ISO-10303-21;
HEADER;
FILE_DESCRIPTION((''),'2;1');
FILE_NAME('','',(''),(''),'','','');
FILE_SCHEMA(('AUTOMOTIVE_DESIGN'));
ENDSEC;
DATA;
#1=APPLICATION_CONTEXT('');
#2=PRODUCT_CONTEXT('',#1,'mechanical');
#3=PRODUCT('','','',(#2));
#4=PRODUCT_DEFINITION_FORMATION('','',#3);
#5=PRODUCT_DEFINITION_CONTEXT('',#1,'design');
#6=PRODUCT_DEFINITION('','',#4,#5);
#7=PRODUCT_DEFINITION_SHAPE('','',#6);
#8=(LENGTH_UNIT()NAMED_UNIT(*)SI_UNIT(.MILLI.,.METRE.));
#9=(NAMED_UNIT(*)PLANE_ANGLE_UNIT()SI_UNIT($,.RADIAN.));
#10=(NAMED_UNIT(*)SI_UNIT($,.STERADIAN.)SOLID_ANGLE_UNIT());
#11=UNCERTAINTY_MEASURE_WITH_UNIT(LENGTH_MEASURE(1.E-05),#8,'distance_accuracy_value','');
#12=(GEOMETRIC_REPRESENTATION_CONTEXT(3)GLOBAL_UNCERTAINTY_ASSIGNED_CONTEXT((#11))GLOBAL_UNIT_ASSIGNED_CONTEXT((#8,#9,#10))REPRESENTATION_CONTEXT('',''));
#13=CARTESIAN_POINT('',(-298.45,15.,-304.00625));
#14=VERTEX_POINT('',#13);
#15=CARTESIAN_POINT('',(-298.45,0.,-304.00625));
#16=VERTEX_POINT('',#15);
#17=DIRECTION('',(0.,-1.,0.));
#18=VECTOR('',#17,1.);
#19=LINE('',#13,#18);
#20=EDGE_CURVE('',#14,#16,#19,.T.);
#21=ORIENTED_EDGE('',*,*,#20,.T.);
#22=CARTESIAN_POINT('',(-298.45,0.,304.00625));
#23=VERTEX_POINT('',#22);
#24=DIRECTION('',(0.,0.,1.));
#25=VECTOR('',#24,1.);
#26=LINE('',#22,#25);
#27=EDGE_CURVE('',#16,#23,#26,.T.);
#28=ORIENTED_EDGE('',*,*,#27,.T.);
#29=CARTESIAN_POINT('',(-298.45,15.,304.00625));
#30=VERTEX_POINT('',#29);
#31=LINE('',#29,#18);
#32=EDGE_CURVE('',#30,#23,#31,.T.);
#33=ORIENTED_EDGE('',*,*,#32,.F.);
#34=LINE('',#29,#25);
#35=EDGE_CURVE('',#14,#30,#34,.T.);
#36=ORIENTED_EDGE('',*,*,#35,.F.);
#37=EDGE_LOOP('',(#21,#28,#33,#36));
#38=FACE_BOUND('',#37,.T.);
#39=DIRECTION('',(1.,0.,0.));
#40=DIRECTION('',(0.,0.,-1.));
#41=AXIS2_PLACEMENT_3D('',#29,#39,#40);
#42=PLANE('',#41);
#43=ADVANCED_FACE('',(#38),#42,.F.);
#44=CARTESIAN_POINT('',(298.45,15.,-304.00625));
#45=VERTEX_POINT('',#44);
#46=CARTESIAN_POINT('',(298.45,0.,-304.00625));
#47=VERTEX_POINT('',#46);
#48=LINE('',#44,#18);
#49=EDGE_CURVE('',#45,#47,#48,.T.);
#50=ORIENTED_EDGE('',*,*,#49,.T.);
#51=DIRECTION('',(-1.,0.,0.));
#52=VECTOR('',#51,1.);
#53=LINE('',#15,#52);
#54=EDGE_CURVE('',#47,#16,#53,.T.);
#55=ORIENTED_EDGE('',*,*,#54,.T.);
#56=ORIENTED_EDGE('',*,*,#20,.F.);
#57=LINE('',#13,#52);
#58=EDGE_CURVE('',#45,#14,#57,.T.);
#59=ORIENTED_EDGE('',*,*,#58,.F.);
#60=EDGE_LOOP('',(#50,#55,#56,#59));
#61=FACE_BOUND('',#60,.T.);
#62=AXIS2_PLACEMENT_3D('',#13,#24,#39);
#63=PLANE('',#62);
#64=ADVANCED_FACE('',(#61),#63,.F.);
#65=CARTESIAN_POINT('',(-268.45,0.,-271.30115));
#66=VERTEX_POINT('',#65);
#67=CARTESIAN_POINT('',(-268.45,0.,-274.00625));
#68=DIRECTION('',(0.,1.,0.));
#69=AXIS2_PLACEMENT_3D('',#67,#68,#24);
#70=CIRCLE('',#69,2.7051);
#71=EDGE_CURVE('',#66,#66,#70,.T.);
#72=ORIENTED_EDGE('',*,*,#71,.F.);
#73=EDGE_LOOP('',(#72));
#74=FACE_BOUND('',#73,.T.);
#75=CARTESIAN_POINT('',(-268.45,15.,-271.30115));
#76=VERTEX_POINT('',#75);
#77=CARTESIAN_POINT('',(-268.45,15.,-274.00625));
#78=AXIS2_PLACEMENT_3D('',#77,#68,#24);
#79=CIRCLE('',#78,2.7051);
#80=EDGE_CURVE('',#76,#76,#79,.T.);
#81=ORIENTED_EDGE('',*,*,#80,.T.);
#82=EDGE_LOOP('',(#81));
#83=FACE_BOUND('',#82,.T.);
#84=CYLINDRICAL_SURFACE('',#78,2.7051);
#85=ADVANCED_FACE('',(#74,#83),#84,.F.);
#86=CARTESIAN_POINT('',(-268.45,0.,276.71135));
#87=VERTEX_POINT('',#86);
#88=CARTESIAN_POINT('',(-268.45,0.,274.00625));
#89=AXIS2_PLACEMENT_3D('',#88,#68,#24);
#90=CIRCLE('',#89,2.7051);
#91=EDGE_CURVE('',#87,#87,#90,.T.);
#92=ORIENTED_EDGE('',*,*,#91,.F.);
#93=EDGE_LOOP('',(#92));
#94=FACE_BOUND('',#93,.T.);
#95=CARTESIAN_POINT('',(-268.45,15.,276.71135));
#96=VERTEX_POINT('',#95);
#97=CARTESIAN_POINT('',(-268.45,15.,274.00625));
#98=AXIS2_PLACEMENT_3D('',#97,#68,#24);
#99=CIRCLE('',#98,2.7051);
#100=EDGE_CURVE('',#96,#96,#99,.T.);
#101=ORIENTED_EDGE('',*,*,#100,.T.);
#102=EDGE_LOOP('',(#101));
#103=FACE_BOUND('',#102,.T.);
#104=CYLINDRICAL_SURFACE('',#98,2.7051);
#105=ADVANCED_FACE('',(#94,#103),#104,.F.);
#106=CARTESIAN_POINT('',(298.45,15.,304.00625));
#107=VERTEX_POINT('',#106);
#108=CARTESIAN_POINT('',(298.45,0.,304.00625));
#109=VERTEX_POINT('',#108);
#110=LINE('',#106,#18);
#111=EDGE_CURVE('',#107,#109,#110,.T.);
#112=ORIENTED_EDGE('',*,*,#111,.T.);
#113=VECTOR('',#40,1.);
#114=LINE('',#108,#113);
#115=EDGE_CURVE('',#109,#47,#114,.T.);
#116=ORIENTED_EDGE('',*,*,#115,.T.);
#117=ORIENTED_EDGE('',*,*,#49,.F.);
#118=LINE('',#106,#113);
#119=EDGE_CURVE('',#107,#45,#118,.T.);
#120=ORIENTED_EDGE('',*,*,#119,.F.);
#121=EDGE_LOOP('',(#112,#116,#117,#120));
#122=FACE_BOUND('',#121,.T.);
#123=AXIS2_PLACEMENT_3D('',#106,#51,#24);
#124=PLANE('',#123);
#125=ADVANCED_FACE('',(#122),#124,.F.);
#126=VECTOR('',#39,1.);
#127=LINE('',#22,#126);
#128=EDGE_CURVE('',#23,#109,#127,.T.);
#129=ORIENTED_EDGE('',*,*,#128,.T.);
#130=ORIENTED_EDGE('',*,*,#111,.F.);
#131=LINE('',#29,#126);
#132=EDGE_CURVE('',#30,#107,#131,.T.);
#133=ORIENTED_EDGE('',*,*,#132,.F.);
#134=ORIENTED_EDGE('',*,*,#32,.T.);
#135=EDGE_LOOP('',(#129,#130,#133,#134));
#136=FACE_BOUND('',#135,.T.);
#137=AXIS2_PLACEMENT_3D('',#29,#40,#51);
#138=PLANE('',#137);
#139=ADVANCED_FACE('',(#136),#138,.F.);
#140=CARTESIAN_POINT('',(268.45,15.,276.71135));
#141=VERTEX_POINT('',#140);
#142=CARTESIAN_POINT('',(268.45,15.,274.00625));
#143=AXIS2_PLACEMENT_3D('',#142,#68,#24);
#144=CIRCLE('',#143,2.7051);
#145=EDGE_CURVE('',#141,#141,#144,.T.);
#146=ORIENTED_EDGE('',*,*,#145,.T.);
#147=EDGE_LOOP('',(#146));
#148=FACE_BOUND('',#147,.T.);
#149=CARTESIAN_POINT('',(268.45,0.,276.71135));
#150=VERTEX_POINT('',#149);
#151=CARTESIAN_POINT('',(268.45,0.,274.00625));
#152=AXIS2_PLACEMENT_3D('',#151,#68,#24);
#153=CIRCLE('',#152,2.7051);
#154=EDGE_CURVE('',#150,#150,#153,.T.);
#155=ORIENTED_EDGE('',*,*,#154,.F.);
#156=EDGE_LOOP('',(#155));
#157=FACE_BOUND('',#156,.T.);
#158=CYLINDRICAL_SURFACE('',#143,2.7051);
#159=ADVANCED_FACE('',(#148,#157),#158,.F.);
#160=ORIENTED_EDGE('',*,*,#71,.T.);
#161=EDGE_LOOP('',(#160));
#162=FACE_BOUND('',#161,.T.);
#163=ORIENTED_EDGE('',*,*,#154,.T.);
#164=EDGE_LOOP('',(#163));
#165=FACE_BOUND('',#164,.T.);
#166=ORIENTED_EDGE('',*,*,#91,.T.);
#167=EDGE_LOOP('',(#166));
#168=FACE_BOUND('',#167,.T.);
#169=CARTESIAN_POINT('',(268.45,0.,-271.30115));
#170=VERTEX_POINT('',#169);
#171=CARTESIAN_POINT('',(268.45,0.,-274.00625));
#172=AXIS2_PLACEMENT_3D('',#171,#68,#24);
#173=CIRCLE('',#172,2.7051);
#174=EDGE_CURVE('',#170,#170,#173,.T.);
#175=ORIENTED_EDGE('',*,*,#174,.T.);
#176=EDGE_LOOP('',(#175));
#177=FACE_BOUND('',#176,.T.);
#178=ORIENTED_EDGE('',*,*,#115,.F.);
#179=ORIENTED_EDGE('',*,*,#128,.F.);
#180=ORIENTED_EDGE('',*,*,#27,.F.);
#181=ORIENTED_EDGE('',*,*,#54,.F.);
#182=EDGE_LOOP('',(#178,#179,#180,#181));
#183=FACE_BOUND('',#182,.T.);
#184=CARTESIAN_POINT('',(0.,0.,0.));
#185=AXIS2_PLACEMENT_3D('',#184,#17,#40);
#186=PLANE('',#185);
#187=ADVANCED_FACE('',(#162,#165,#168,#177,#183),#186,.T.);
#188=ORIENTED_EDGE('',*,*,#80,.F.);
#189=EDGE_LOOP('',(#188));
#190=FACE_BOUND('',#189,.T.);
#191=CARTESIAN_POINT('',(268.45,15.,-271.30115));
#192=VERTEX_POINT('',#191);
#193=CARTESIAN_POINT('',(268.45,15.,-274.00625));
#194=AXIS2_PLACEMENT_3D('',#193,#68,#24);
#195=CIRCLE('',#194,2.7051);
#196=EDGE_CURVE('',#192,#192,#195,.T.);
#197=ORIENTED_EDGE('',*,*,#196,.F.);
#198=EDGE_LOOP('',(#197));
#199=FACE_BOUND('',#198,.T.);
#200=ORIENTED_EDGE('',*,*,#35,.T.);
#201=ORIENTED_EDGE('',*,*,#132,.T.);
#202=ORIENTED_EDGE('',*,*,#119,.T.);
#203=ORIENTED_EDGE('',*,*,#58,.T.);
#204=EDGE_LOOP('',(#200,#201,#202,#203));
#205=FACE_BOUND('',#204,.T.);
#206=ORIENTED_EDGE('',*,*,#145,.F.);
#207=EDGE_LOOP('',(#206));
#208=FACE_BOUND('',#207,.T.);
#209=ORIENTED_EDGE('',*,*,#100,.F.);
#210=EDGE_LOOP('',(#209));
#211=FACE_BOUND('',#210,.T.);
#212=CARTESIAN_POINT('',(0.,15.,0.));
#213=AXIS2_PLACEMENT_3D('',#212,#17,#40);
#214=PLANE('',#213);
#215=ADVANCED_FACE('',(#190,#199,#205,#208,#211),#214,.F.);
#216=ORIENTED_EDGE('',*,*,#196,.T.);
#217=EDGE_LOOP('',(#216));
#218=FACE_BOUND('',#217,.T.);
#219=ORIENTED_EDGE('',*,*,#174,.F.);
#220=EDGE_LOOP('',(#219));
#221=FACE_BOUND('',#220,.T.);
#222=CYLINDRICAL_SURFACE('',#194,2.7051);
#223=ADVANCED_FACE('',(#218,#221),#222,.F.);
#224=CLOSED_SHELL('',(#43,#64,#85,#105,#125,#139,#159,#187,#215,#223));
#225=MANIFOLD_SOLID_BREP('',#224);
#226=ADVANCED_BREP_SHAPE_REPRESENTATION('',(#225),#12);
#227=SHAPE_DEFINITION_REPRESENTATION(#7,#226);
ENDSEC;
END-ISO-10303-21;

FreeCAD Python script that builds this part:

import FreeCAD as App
import Part
import Sketcher
from FreeCAD import Vector
Q = App.Units.Quantity


def add_polygon(sketch, points):
    """Adds a closed chain of lines whose ends are joined by coincident constraints."""
    first, n = sketch.GeometryCount, len(points)
    for a, b in zip(points, points[1:] + points[:1]):
        sketch.addGeometry(Part.LineSegment(App.Vector(*a, 0), App.Vector(*b, 0)), False)
    for i in range(n):
        sketch.addConstraint(Sketcher.Constraint("Coincident", first + i, 2, first + (i + 1) % n, 1))

doc = App.newDocument("Part")
body = doc.addObject("PartDesign::Body", "Body")

# Sketch on XZ plane
sketch1 = body.newObject("Sketcher::SketchObject", "Sketch")
sketch1.AttachmentSupport = (doc.getObject("XZ_Plane"), [""])
sketch1.MapMode = "FlatFace"
add_polygon(sketch1, [(-298.45, -304.00625), (-298.45, 304.00625), (298.45, 304.00625), (298.45, -304.00625)])  # lines 0-3
sketch1.addConstraint(Sketcher.Constraint("Vertical", 0))
sketch1.addConstraint(Sketcher.Constraint("Horizontal", 1))
sketch1.addConstraint(Sketcher.Constraint("Vertical", 2))
sketch1.addConstraint(Sketcher.Constraint("Horizontal", 3))
sketch1.addConstraint(Sketcher.Constraint("Symmetric", 0, 2, 2, 2, -1, 1))
sketch1.addConstraint(Sketcher.Constraint("DistanceX", 1, 1, 1, 2, Q("23.5 in")))
sketch1.addConstraint(Sketcher.Constraint("DistanceY", 0, 1, 0, 2, Q("23.9375 in")))
pad1 = body.newObject("PartDesign::Pad", "Pad")
pad1.Profile = sketch1
pad1.Length = 15
pad1.Reversed = True

# Sketch on XZ plane
sketch2 = body.newObject("Sketcher::SketchObject", "Sketch001")
sketch2.AttachmentSupport = (doc.getObject("XZ_Plane"), [""])
sketch2.MapMode = "FlatFace"
sketch2.AttachmentOffset = App.Placement(Vector(0, 0, -15), App.Rotation())
sketch2.addGeometry(Part.Circle(Vector(-268.45, 274.00625, 0), Vector(0, 0, 1), 2.7051), False)
sketch2.addGeometry(Part.Circle(Vector(-268.45, -274.00625, 0), Vector(0, 0, 1), 2.7051), False)
sketch2.addGeometry(Part.Circle(Vector(268.45, -274.00625, 0), Vector(0, 0, 1), 2.7051), False)
sketch2.addGeometry(Part.Circle(Vector(268.45, 274.00625, 0), Vector(0, 0, 1), 2.7051), False)
sketch2.addConstraint(Sketcher.Constraint("Equal", 0, 1))
sketch2.addConstraint(Sketcher.Constraint("Equal", 1, 2))
sketch2.addConstraint(Sketcher.Constraint("Equal", 2, 3))
sketch2.addConstraint(Sketcher.Constraint("Symmetric", 0, 3, 2, 3, -1, 1))
sketch2.addConstraint(Sketcher.Constraint("Symmetric", 1, 3, 3, 3, -1, 1))
sketch2.addConstraint(Sketcher.Constraint("Symmetric", 1, 3, 2, 3, -2))
sketch2.addConstraint(Sketcher.Constraint("Diameter", 0, Q("0.213 in")))
sketch2.addConstraint(Sketcher.Constraint("DistanceX", 0, 3, -1, 1, 268.45))
sketch2.addConstraint(Sketcher.Constraint("DistanceY", 1, 3, 0, 3, 548.0125))
doc.recompute()
hole = body.newObject("PartDesign::Hole", "Hole")
hole.Profile = sketch2
hole.ThreadType = "None"
hole.Diameter = Q("0.213 in")
hole.DepthType = "ThroughAll"
hole.Reversed = True

doc.recompute()
